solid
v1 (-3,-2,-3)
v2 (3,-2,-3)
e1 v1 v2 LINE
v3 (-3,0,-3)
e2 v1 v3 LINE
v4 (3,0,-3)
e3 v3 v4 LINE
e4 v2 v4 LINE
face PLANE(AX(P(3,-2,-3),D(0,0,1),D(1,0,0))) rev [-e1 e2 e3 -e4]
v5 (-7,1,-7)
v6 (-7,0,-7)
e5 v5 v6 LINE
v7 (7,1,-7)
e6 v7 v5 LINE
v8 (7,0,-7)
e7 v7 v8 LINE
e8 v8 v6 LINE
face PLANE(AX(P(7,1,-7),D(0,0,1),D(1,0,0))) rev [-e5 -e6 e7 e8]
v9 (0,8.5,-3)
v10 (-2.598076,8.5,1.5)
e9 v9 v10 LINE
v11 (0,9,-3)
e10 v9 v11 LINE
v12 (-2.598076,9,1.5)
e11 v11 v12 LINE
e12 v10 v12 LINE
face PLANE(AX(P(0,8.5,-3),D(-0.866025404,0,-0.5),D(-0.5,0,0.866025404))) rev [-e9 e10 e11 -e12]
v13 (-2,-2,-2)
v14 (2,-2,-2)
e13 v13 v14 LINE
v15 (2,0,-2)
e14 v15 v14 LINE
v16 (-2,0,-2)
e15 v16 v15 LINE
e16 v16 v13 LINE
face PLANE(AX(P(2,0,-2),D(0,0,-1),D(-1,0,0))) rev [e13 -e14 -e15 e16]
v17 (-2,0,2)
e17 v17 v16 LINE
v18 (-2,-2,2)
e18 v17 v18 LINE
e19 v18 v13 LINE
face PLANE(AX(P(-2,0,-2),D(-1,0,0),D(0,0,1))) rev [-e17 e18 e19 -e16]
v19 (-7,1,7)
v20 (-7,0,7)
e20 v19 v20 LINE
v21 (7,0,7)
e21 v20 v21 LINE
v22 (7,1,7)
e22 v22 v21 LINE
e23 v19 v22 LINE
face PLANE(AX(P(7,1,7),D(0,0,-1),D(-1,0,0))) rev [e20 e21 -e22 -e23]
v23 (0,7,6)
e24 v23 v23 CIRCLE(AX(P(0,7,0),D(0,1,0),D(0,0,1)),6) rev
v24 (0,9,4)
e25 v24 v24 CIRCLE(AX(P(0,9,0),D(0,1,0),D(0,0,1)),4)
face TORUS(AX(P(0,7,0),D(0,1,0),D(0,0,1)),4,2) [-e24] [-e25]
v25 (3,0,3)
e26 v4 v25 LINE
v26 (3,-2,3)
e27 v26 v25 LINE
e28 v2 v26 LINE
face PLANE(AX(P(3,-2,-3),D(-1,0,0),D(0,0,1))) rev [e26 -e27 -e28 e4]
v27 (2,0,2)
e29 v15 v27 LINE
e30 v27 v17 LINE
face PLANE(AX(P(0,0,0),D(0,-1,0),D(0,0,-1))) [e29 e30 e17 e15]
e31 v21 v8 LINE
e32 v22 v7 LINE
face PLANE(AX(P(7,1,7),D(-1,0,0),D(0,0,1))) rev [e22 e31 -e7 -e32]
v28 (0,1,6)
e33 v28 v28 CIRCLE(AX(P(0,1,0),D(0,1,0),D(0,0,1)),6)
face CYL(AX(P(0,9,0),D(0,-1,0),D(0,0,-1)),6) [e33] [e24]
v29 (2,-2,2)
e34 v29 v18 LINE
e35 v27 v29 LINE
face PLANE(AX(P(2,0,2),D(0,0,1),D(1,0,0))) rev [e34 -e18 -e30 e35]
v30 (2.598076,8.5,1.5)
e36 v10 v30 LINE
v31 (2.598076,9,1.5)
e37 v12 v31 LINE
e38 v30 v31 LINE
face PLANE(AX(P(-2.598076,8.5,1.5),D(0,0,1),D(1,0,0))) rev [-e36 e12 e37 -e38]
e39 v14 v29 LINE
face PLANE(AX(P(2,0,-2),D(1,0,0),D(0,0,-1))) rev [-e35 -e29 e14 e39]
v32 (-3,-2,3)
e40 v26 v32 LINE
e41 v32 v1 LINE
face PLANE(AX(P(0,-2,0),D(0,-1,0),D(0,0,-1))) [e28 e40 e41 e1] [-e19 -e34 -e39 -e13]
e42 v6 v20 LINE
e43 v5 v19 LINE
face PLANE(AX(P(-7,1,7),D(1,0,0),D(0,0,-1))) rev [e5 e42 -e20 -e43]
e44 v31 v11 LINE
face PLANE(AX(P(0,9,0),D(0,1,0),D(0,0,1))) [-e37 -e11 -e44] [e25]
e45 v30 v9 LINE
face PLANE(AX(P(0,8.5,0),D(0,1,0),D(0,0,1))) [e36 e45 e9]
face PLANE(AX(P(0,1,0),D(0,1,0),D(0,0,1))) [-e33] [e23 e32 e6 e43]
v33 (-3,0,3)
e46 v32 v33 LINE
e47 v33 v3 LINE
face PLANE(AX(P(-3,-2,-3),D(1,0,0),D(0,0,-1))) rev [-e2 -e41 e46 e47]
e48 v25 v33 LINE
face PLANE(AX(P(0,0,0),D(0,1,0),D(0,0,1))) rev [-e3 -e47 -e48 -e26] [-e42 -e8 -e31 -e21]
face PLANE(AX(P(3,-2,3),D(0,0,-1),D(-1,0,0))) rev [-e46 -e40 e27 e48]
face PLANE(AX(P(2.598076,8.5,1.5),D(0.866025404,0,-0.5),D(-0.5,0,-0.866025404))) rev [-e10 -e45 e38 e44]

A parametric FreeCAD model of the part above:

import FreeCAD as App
import Part
import Sketcher
Q = App.Units.Quantity


def edges_at(feature, points):
    """Names of the edges that pass closest to the given points."""
    edges = feature.Shape.Edges
    near = lambda p: min(range(len(edges)), key=lambda i: edges[i].distToShape(Part.Vertex(*p))[0])
    return sorted({f"Edge{near(p) + 1}" for p in points})


def add_polygon(sketch, points):
    """Adds a closed chain of lines whose ends are joined by coincident constraints."""
    first, n = sketch.GeometryCount, len(points)
    for a, b in zip(points, points[1:] + points[:1]):
        sketch.addGeometry(Part.LineSegment(App.Vector(*a, 0), App.Vector(*b, 0)), False)
    for i in range(n):
        sketch.addConstraint(Sketcher.Constraint("Coincident", first + i, 2, first + (i + 1) % n, 1))

doc = App.newDocument("Part")
params = doc.addObject("Spreadsheet::Sheet", "Params")
for row, (alias, value) in enumerate([
    ("sketch1_width", "14 mm"),
    ("pad1_length", "1 mm"),
    ("sketch2_width", "4 mm"),
    ("pocket1_length", "1 mm"),
    ("sketch3_width", "6 mm"),
    ("pad2_length", "1 mm"),
    ("sketch4_width", "4 mm"),
    ("pocket2_length", "1 mm"),
    ("sketch5_diameter", "12 mm"),
    ("pad3_length", "8 mm"),
    ("sketch6_width", "6 mm"),
    ("pocket3_length", "2 mm"),
    ("sketch7_width", "14 mm"),
    ("pad4_length", "1 mm"),
    ("sketch8_width", "6 mm"),
    ("pad5_length", "2 mm"),
    ("sketch9_width", "4 mm"),
    ("pocket4_length", "2 mm"),
    ("fillet_radius", "2 mm"),
    ("pocket5_length", "0.5 mm"),
], start=1):
    params.set(f"A{row}", alias)
    params.set(f"B{row}", "=" + value)
    params.setAlias(f"B{row}", alias)

body = doc.addObject("PartDesign::Body", "Body")

# Sketch on XZ plane
sketch1 = body.newObject("Sketcher::SketchObject", "Sketch")
sketch1.AttachmentSupport = (doc.getObject("XZ_Plane"), [""])
sketch1.MapMode = "FlatFace"
add_polygon(sketch1, [(-7, -7), (-7, 7), (7, 7), (7, -7)])  # lines 0-3
sketch1.addConstraint([
    Sketcher.Constraint("Vertical", 0),
    Sketcher.Constraint("Horizontal", 1),
    Sketcher.Constraint("Vertical", 2),
    Sketcher.Constraint("Horizontal", 3),
    Sketcher.Constraint("Symmetric", 0, 2, 2, 2, -1, 1),
    Sketcher.Constraint("Equal", 3, 0),
    Sketcher.Constraint("DistanceX", 1, 1, 1, 2, Q("14 mm")),
])
sketch1.setExpression("Constraints[10]", "Params.sketch1_width")
pad1 = body.newObject("PartDesign::Pad", "Pad")
pad1.Profile = sketch1
pad1.setExpression("Length", "Params.pad1_length")
pad1.Reversed = True

# Sketch on XZ plane
sketch2 = body.newObject("Sketcher::SketchObject", "Sketch001")
sketch2.AttachmentSupport = (doc.getObject("XZ_Plane"), [""])
sketch2.MapMode = "FlatFace"
add_polygon(sketch2, [(-2, 2), (-2, -2), (2, -2), (2, 2)])  # lines 0-3
sketch2.addConstraint([
    Sketcher.Constraint("Vertical", 0),
    Sketcher.Constraint("Horizontal", 1),
    Sketcher.Constraint("Vertical", 2),
    Sketcher.Constraint("Horizontal", 3),
    Sketcher.Constraint("Symmetric", 0, 2, 2, 2, -1, 1),
    Sketcher.Constraint("Equal", 3, 0),
    Sketcher.Constraint("DistanceX", 1, 1, 1, 2, Q("4 mm")),
])
sketch2.setExpression("Constraints[10]", "Params.sketch2_width")
pocket1 = body.newObject("PartDesign::Pocket", "Pocket")
pocket1.Profile = sketch2
pocket1.setExpression("Length", "Params.pocket1_length")

# Sketch on XZ plane
sketch3 = body.newObject("Sketcher::SketchObject", "Sketch002")
sketch3.AttachmentSupport = (doc.getObject("XZ_Plane"), [""])
sketch3.MapMode = "FlatFace"
add_polygon(sketch3, [(-3, 3), (-3, -3), (3, -3), (3, 3)])  # lines 0-3
sketch3.addConstraint([
    Sketcher.Constraint("Vertical", 0),
    Sketcher.Constraint("Horizontal", 1),
    Sketcher.Constraint("Vertical", 2),
    Sketcher.Constraint("Horizontal", 3),
    Sketcher.Constraint("Symmetric", 0, 2, 2, 2, -1, 1),
    Sketcher.Constraint("Equal", 3, 0),
    Sketcher.Constraint("DistanceX", 1, 1, 1, 2, Q("6 mm")),
])
sketch3.setExpression("Constraints[10]", "Params.sketch3_width")
pad2 = body.newObject("PartDesign::Pad", "Pad001")
pad2.Profile = sketch3
pad2.setExpression("Length", "Params.pad2_length")

# Sketch on XZ plane
sketch4 = body.newObject("Sketcher::SketchObject", "Sketch003")
sketch4.AttachmentSupport = (doc.getObject("XZ_Plane"), [""])
sketch4.MapMode = "FlatFace"
sketch4.AttachmentOffset = App.Placement(App.Vector(0, 0, 1), App.Rotation())
add_polygon(sketch4, [(-2, 2), (-2, -2), (2, -2), (2, 2)])  # lines 0-3
sketch4.addConstraint([
    Sketcher.Constraint("Vertical", 0),
    Sketcher.Constraint("Horizontal", 1),
    Sketcher.Constraint("Vertical", 2),
    Sketcher.Constraint("Horizontal", 3),
    Sketcher.Constraint("Symmetric", 0, 2, 2, 2, -1, 1),
    Sketcher.Constraint("Equal", 3, 0),
    Sketcher.Constraint("DistanceX", 1, 1, 1, 2, Q("4 mm")),
])
sketch4.setExpression("Constraints[10]", "Params.sketch4_width")
pocket2 = body.newObject("PartDesign::Pocket", "Pocket001")
pocket2.Profile = sketch4
pocket2.setExpression("Length", "Params.pocket2_length")

# Sketch on XZ plane
sketch5 = body.newObject("Sketcher::SketchObject", "Sketch004")
sketch5.AttachmentSupport = (doc.getObject("XZ_Plane"), [""])
sketch5.MapMode = "FlatFace"
sketch5.AttachmentOffset = App.Placement(App.Vector(0, 0, -1), App.Rotation())
sketch5.addGeometry(Part.Circle(App.Vector(0, 0, 0), App.Vector(0, 0, 1), 6), False)
sketch5.addConstraint([
    Sketcher.Constraint("Coincident", 0, 3, -1, 1),
    Sketcher.Constraint("Diameter", 0, Q("12 mm")),
])
sketch5.setExpression("Constraints[1]", "Params.sketch5_diameter")
pad3 = body.newObject("PartDesign::Pad", "Pad002")
pad3.Profile = sketch5
pad3.setExpression("Length", "Params.pad3_length")
pad3.Reversed = True

# Sketch on XZ plane
sketch6 = body.newObject("Sketcher::SketchObject", "Sketch005")
sketch6.AttachmentSupport = (doc.getObject("XZ_Plane"), [""])
sketch6.MapMode = "FlatFace"
sketch6.AttachmentOffset = App.Placement(App.Vector(0, 0, 1), App.Rotation())
add_polygon(sketch6, [(-3, 3), (-3, -3), (3, -3), (3, 3)])  # lines 0-3
sketch6.addConstraint([
    Sketcher.Constraint("Vertical", 0),
    Sketcher.Constraint("Horizontal", 1),
    Sketcher.Constraint("Vertical", 2),
    Sketcher.Constraint("Horizontal", 3),
    Sketcher.Constraint("Symmetric", 0, 2, 2, 2, -1, 1),
    Sketcher.Constraint("Equal", 3, 0),
    Sketcher.Constraint("DistanceX", 1, 1, 1, 2, Q("6 mm")),
])
sketch6.setExpression("Constraints[10]", "Params.sketch6_width")
pocket3 = body.newObject("PartDesign::Pocket", "Pocket002")
pocket3.Profile = sketch6
pocket3.setExpression("Length", "Params.pocket3_length")

# Sketch on XZ plane
sketch7 = body.newObject("Sketcher::SketchObject", "Sketch006")
sketch7.AttachmentSupport = (doc.getObject("XZ_Plane"), [""])
sketch7.MapMode = "FlatFace"
add_polygon(sketch7, [(-7, 7), (-7, -7), (7, -7), (7, 7)])  # lines 0-3
sketch7.addConstraint([
    Sketcher.Constraint("Vertical", 0),
    Sketcher.Constraint("Horizontal", 1),
    Sketcher.Constraint("Vertical", 2),
    Sketcher.Constraint("Horizontal", 3),
    Sketcher.Constraint("Symmetric", 0, 2, 2, 2, -1, 1),
    Sketcher.Constraint("Equal", 3, 0),
    Sketcher.Constraint("DistanceX", 1, 1, 1, 2, Q("14 mm")),
])
sketch7.setExpression("Constraints[10]", "Params.sketch7_width")
pad4 = body.newObject("PartDesign::Pad", "Pad003")
pad4.Profile = sketch7
pad4.setExpression("Length", "Params.pad4_length")
pad4.Reversed = True

# Sketch on XZ plane
sketch8 = body.newObject("Sketcher::SketchObject", "Sketch007")
sketch8.AttachmentSupport = (doc.getObject("XZ_Plane"), [""])
sketch8.MapMode = "FlatFace"
add_polygon(sketch8, [(-3, 3), (-3, -3), (3, -3), (3, 3)])  # lines 0-3
sketch8.addConstraint([
    Sketcher.Constraint("Vertical", 0),
    Sketcher.Constraint("Horizontal", 1),
    Sketcher.Constraint("Vertical", 2),
    Sketcher.Constraint("Horizontal", 3),
    Sketcher.Constraint("Symmetric", 0, 2, 2, 2, -1, 1),
    Sketcher.Constraint("Equal", 3, 0),
    Sketcher.Constraint("DistanceX", 1, 1, 1, 2, Q("6 mm")),
])
sketch8.setExpression("Constraints[10]", "Params.sketch8_width")
pad5 = body.newObject("PartDesign::Pad", "Pad004")
pad5.Profile = sketch8
pad5.setExpression("Length", "Params.pad5_length")

# Sketch on XZ plane
sketch9 = body.newObject("Sketcher::SketchObject", "Sketch008")
sketch9.AttachmentSupport = (doc.getObject("XZ_Plane"), [""])
sketch9.MapMode = "FlatFace"
sketch9.AttachmentOffset = App.Placement(App.Vector(0, 0, 2), App.Rotation())
add_polygon(sketch9, [(-2, 2), (-2, -2), (2, -2), (2, 2)])  # lines 0-3
sketch9.addConstraint([
    Sketcher.Constraint("Vertical", 0),
    Sketcher.Constraint("Horizontal", 1),
    Sketcher.Constraint("Vertical", 2),
    Sketcher.Constraint("Horizontal", 3),
    Sketcher.Constraint("Symmetric", 0, 2, 2, 2, -1, 1),
    Sketcher.Constraint("Equal", 3, 0),
    Sketcher.Constraint("DistanceX", 1, 1, 1, 2, Q("4 mm")),
])
sketch9.setExpression("Constraints[10]", "Params.sketch9_width")
pocket4 = body.newObject("PartDesign::Pocket", "Pocket003")
pocket4.Profile = sketch9
pocket4.setExpression("Length", "Params.pocket4_length")
doc.recompute()

fillet = body.newObject("PartDesign::Fillet", "Fillet")
fillet.Base = (pocket4, edges_at(pocket4, [(0, 9, -6)]))
fillet.setExpression("Radius", "Params.fillet_radius")

# Sketch on XZ plane
sketch10 = body.newObject("Sketcher::SketchObject", "Sketch009")
sketch10.AttachmentSupport = (doc.getObject("XZ_Plane"), [""])
sketch10.MapMode = "FlatFace"
sketch10.AttachmentOffset = App.Placement(App.Vector(0, 0, -9), App.Rotation())
add_polygon(sketch10, [(0, -3), (-2.598076, 1.5), (2.598076, 1.5)])  # lines 0-2
sketch10.addConstraint([
    Sketcher.Constraint("Horizontal", 1),
    Sketcher.Constraint("PointOnObject", 2, 2, -2),
    Sketcher.Constraint("Equal", 0, 2),
    Sketcher.Constraint("Angle", 0, Q("120 deg")),
    Sketcher.Constraint("DistanceY", 2, 2, -1, 1, Q("3 mm")),
    Sketcher.Constraint("DistanceY", -1, 1, 0, 2, Q("1.5 mm")),
])
pocket5 = body.newObject("PartDesign::Pocket", "Pocket004")
pocket5.Profile = sketch10
pocket5.setExpression("Length", "Params.pocket5_length")
pocket5.Reversed = True

doc.recompute()
